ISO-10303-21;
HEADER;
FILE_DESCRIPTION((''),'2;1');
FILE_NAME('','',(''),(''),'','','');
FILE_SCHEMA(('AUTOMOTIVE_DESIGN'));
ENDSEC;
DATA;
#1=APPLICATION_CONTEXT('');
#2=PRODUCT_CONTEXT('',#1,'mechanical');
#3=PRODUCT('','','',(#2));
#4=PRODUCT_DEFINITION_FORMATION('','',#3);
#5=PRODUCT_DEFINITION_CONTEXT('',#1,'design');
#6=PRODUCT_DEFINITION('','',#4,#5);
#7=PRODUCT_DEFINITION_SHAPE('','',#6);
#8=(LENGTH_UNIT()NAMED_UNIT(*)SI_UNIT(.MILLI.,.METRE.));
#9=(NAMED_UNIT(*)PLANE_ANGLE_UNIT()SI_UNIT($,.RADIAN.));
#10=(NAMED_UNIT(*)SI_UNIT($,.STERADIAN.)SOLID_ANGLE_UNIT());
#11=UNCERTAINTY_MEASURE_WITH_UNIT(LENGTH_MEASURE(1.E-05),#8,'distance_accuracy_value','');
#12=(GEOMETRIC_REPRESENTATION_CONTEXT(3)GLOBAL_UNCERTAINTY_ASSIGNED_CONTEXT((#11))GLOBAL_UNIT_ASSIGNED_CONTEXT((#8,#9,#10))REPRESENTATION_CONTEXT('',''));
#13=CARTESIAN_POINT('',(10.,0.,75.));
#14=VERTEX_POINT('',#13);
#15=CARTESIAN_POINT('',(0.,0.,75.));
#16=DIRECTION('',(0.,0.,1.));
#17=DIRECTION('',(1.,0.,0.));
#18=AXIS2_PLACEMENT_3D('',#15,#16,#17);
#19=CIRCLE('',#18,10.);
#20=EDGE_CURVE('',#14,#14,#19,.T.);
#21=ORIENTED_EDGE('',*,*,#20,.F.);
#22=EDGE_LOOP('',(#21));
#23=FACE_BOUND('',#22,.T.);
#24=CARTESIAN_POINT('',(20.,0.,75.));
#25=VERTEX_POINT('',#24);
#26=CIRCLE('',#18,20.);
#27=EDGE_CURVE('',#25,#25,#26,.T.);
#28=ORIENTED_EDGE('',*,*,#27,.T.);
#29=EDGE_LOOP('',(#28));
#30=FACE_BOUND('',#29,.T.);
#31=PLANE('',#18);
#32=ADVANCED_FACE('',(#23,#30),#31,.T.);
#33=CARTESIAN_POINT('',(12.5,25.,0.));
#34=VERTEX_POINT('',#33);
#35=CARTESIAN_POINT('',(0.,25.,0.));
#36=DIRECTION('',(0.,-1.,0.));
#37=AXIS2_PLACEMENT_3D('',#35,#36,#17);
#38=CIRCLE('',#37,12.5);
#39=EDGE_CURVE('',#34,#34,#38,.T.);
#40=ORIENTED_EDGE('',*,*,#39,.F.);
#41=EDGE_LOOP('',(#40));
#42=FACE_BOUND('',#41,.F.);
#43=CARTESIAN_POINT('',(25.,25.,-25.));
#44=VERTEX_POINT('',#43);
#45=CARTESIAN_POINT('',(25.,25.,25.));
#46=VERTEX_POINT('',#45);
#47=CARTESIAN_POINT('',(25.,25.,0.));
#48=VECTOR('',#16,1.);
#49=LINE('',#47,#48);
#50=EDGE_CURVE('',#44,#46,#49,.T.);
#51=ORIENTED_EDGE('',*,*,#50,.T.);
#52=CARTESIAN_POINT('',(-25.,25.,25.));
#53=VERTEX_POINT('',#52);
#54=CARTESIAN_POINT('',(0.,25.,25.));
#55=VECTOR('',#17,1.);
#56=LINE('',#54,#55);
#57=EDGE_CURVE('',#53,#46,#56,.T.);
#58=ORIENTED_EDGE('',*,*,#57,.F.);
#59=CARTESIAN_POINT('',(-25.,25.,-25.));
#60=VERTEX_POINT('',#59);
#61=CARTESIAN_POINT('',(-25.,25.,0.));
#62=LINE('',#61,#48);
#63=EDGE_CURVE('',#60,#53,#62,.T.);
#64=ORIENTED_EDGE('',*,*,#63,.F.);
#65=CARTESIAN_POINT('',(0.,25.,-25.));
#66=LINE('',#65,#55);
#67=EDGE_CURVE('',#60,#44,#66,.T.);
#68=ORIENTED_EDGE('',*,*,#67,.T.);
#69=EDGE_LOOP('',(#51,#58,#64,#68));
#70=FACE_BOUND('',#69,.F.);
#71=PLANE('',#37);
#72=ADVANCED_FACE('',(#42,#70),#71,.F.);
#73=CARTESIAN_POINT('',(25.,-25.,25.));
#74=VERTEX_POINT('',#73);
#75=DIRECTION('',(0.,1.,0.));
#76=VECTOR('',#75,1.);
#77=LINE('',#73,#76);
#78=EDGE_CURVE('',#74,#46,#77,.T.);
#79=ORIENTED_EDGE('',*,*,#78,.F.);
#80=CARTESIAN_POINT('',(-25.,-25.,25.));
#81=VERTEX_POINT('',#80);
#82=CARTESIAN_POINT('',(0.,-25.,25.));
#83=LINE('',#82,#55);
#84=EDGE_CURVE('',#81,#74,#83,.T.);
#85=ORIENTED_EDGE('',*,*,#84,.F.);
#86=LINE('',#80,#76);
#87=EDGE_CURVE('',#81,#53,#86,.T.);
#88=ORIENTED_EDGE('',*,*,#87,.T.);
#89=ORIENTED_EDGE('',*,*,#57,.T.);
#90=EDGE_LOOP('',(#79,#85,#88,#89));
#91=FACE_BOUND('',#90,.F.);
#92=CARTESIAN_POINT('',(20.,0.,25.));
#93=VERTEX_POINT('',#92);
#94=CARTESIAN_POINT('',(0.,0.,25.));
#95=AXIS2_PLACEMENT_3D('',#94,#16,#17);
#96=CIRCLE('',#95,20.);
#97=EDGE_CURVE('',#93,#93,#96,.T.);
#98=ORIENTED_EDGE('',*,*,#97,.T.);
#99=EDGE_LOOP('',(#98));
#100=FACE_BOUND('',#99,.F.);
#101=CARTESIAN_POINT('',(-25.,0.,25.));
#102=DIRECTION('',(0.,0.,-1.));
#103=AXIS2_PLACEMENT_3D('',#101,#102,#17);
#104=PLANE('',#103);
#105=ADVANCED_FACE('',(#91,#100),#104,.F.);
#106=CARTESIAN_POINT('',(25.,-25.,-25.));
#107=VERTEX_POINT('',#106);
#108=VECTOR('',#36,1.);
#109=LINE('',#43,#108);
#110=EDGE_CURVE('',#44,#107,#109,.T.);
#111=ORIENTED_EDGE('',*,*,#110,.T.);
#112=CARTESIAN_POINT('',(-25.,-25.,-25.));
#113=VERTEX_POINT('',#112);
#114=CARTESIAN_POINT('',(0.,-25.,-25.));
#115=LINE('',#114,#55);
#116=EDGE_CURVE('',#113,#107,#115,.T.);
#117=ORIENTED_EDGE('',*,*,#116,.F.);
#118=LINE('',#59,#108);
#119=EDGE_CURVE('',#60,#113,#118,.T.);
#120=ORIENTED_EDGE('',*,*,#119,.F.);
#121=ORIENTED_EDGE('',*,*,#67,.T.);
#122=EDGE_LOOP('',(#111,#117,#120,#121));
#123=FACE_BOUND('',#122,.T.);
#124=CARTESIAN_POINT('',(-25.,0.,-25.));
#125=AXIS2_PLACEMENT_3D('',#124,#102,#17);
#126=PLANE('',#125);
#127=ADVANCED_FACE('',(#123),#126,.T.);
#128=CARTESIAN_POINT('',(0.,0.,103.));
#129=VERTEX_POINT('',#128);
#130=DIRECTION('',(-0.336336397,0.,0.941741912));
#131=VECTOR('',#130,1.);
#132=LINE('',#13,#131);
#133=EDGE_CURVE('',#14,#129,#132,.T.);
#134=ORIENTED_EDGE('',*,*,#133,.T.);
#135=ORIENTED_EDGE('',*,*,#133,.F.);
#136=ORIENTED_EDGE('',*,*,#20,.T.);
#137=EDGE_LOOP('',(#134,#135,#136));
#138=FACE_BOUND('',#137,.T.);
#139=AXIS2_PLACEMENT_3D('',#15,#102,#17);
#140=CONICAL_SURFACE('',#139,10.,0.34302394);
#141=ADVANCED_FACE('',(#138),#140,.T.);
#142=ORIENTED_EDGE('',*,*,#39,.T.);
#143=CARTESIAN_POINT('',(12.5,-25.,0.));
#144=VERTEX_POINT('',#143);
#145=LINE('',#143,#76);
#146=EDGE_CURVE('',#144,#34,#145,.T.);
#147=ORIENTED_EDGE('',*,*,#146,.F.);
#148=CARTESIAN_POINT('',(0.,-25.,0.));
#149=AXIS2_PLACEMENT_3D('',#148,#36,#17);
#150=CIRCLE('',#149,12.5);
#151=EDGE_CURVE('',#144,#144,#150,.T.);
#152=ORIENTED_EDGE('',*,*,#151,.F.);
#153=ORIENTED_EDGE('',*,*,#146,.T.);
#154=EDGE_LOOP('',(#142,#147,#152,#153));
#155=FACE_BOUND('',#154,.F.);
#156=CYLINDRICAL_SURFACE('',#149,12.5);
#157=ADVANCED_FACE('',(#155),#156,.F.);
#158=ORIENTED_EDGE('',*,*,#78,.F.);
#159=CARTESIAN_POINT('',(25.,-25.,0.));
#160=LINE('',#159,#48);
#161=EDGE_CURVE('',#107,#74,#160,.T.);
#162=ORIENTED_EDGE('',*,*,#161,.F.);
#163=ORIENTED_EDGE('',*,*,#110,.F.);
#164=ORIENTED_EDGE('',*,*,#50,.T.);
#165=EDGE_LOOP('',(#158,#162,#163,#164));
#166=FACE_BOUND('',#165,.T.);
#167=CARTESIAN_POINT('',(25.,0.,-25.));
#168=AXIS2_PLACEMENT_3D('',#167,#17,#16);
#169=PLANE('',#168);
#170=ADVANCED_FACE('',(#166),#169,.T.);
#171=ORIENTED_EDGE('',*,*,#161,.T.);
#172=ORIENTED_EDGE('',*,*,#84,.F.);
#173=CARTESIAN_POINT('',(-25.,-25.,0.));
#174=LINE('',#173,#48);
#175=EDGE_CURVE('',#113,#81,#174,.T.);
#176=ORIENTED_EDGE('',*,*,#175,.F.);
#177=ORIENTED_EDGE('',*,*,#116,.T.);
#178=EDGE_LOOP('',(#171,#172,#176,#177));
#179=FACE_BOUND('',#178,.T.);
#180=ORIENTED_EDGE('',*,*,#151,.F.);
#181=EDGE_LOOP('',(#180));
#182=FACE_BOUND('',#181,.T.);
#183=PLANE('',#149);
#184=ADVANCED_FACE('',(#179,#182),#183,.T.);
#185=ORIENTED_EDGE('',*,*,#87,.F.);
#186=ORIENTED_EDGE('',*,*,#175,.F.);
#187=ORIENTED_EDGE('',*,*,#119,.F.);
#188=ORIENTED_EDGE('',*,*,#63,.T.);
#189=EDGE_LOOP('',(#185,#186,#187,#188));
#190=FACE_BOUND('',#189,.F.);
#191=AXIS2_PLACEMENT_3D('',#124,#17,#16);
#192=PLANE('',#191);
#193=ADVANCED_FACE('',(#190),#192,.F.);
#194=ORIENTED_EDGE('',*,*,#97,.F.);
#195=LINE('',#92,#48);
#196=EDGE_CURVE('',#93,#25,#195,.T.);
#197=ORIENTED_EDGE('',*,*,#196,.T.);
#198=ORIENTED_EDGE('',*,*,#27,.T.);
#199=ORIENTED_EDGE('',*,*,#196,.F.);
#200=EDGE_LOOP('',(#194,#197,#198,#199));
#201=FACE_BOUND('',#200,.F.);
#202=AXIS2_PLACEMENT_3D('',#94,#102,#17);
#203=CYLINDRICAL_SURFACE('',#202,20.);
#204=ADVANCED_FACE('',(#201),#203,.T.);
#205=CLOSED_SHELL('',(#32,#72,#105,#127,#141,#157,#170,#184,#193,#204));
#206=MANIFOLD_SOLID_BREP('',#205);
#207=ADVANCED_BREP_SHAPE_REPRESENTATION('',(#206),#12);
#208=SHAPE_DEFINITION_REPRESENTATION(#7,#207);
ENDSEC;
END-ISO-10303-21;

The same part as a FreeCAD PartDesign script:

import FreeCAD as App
import Part
import Sketcher

V = App.Vector
Q = App.Units.Quantity

doc = App.newDocument("Part")
body = doc.addObject("PartDesign::Body", "Body")

# Sketch on XZ plane
sketch1 = body.newObject("Sketcher::SketchObject", "Sketch")
sketch1.AttachmentSupport = (doc.getObject("XZ_Plane"), [""])
sketch1.MapMode = "FlatFace"
sketch1.addGeometry([
    Part.LineSegment(V(-25, 25, 0), V(-25, -25, 0)),
    Part.LineSegment(V(-25, -25, 0), V(25, -25, 0)),
    Part.LineSegment(V(25, -25, 0), V(25, 25, 0)),
    Part.LineSegment(V(25, 25, 0), V(-25, 25, 0)),
], False)
sketch1.addConstraint([
    Sketcher.Constraint("Coincident", 0, 2, 1, 1),
    Sketcher.Constraint("Coincident", 1, 2, 2, 1),
    Sketcher.Constraint("Coincident", 2, 2, 3, 1),
    Sketcher.Constraint("Coincident", 3, 2, 0, 1),
    Sketcher.Constraint("Vertical", 0),
    Sketcher.Constraint("Horizontal", 1),
    Sketcher.Constraint("Vertical", 2),
    Sketcher.Constraint("Horizontal", 3),
    Sketcher.Constraint("Symmetric", 0, 2, 2, 2, -1, 1),
    Sketcher.Constraint("Equal", 3, 0),
    Sketcher.Constraint("DistanceX", 1, 1, 1, 2, Q("50 mm")),
])
pad1 = body.newObject("PartDesign::Pad", "Pad")
pad1.Profile = sketch1
pad1.Length = 50
pad1.Midplane = True

# Sketch on XZ plane
sketch2 = body.newObject("Sketcher::SketchObject", "Sketch001")
sketch2.AttachmentSupport = (doc.getObject("XZ_Plane"), [""])
sketch2.MapMode = "FlatFace"
sketch2.AttachmentOffset = App.Placement(V(0, 0, 25), App.Rotation())
sketch2.addGeometry(Part.Circle(V(0, 0, 0), V(0, 0, 1), 12), False)
sketch2.addConstraint([
    Sketcher.Constraint("Coincident", 0, 3, -1, 1),
    Sketcher.Constraint("Diameter", 0, Q("25 mm")),
])
pocket1 = body.newObject("PartDesign::Pocket", "Pocket")
pocket1.Profile = sketch2
pocket1.Length = 50

# Sketch on XY plane
sketch3 = body.newObject("Sketcher::SketchObject", "Sketch002")
sketch3.AttachmentSupport = (doc.getObject("XY_Plane"), [""])
sketch3.MapMode = "FlatFace"
sketch3.AttachmentOffset = App.Placement(V(0, 0, 25), App.Rotation())
sketch3.addGeometry(Part.Circle(V(0, 0, 0), V(0, 0, 1), 20), False)
sketch3.addConstraint([
    Sketcher.Constraint("Coincident", 0, 3, -1, 1),
    Sketcher.Constraint("Diameter", 0, Q("40 mm")),
])
pad2 = body.newObject("PartDesign::Pad", "Pad001")
pad2.Profile = sketch3
pad2.Length = 50

# Sketch on XZ plane
sketch4 = body.newObject("Sketcher::SketchObject", "Sketch003")
sketch4.AttachmentSupport = (doc.getObject("XZ_Plane"), [""])
sketch4.MapMode = "FlatFace"
sketch4.addGeometry([
    Part.LineSegment(V(0, 103, 0), V(0, 75, 0)),
    Part.LineSegment(V(0, 75, 0), V(10, 75, 0)),
    Part.LineSegment(V(10, 75, 0), V(0, 103, 0)),
], False)
sketch4.addConstraint([
    Sketcher.Constraint("Coincident", 0, 2, 1, 1),
    Sketcher.Constraint("Coincident", 1, 2, 2, 1),
    Sketcher.Constraint("Coincident", 2, 2, 0, 1),
    Sketcher.Constraint("Vertical", 0),
    Sketcher.Constraint("Horizontal", 1),
    Sketcher.Constraint("PointOnObject", 0, 2, -2),
    Sketcher.Constraint("DistanceX", 1, 1, 1, 2, Q("10 mm")),
    Sketcher.Constraint("DistanceY", 0, 2, 0, 1, Q("28 mm")),
    Sketcher.Constraint("DistanceY", -1, 1, 0, 2, Q("75 mm")),
])
revolution = body.newObject("PartDesign::Revolution", "Revolution")
revolution.Profile = sketch4
revolution.ReferenceAxis = (sketch4, ["V_Axis"])
revolution.Angle = 360

doc.recompute()
